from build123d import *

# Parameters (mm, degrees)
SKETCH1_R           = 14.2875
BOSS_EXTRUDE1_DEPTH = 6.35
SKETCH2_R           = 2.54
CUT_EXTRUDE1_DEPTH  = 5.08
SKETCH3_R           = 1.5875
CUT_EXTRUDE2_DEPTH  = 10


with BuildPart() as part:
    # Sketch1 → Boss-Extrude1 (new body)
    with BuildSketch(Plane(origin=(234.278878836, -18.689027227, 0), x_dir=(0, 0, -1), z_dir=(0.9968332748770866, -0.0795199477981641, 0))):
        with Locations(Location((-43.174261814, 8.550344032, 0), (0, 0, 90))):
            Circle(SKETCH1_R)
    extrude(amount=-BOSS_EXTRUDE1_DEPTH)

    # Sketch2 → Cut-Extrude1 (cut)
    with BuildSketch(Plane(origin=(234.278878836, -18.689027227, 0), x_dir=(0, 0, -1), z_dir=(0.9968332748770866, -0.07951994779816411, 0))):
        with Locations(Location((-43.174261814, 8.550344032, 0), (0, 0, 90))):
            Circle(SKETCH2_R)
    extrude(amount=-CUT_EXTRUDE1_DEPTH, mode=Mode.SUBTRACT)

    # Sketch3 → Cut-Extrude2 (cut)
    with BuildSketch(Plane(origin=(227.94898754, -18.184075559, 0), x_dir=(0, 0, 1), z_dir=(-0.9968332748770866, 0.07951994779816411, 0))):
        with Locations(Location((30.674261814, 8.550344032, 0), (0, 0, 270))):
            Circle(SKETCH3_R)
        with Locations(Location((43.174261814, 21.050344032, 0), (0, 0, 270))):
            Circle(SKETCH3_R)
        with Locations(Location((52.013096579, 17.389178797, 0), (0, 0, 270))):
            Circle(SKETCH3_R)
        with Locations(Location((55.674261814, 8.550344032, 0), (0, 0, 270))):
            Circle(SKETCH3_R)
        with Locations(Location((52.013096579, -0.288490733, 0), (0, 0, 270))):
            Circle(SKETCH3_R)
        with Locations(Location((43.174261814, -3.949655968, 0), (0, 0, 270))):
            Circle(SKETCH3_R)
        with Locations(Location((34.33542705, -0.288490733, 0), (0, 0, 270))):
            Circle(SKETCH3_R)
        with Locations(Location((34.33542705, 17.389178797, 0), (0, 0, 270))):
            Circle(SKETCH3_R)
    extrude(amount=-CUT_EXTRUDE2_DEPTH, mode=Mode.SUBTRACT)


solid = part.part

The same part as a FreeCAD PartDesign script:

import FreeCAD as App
import Part
import Sketcher
Q = App.Units.Quantity

doc = App.newDocument("Part")
params = doc.addObject("Spreadsheet::Sheet", "Params")
for row, (alias, value) in enumerate([
    ("sketch1_diameter", "1.125 in"),
    ("pad1_length", "0.25 in"),
    ("sketch2_diameter", "0.2 in"),
    ("pocket1_length", "0.2 in"),
    ("sketch3_diameter", "0.125 in"),
    ("pocket2_length", "10 mm"),
], start=1):
    params.set(f"A{row}", alias)
    params.set(f"B{row}", "=" + value)
    params.setAlias(f"B{row}", alias)

body = doc.addObject("PartDesign::Body", "Body")

sketch1 = body.newObject("Sketcher::SketchObject", "Sketch")
sketch1.Placement = App.Placement(App.Vector(234.278879, -18.689027, 0), App.Rotation(App.Vector(0, 0, -1), App.Vector(0.079519948, 0.996833275, 0), App.Vector(0.996833275, -0.079519948, 0), "ZXY"))
sketch1.addGeometry(Part.Circle(App.Vector(-43, 9, 0), App.Vector(0, 0, 1), 14), False)
sketch1.addConstraint([
    Sketcher.Constraint("Diameter", 0, Q("1.125 in")),
    Sketcher.Constraint("DistanceX", 0, 3, -1, 1, Q("43.174262 mm")),
    Sketcher.Constraint("DistanceY", -1, 1, 0, 3, Q("8.550344 mm")),
])
sketch1.setExpression("Constraints[0]", "Params.sketch1_diameter")
pad1 = body.newObject("PartDesign::Pad", "Pad")
pad1.Profile = sketch1
pad1.setExpression("Length", "Params.pad1_length")
pad1.Reversed = True

sketch2 = body.newObject("Sketcher::SketchObject", "Sketch001")
sketch2.Placement = App.Placement(App.Vector(234.278879, -18.689027, 0), App.Rotation(App.Vector(0, 0, -1), App.Vector(0.079519948, 0.996833275, 0), App.Vector(0.996833275, -0.079519948, 0), "ZXY"))
sketch2.addGeometry(Part.Circle(App.Vector(-43.2, 8.6, 0), App.Vector(0, 0, 1), 2.5), False)
sketch2.addConstraint([
    Sketcher.Constraint("Diameter", 0, Q("0.2 in")),
    Sketcher.Constraint("DistanceX", 0, 3, -1, 1, Q("43.174262 mm")),
    Sketcher.Constraint("DistanceY", -1, 1, 0, 3, Q("8.550344 mm")),
])
sketch2.setExpression("Constraints[0]", "Params.sketch2_diameter")
pocket1 = body.newObject("PartDesign::Pocket", "Pocket")
pocket1.Profile = sketch2
pocket1.setExpression("Length", "Params.pocket1_length")

sketch3 = body.newObject("Sketcher::SketchObject", "Sketch002")
sketch3.Placement = App.Placement(App.Vector(227.948988, -18.184076, 0), App.Rotation(App.Vector(0, 0, 1), App.Vector(0.079519948, 0.996833275, 0), App.Vector(-0.996833275, 0.079519948, 0), "ZXY"))
sketch3.addGeometry([
    Part.Circle(App.Vector(30.7, 8.6, 0), App.Vector(0, 0, 1), 1.6),
    Part.Circle(App.Vector(43.2, 21.1, 0), App.Vector(0, 0, 1), 1.6),
    Part.Circle(App.Vector(52, 17.4, 0), App.Vector(0, 0, 1), 1.6),
    Part.Circle(App.Vector(55.7, 8.6, 0), App.Vector(0, 0, 1), 1.6),
    Part.Circle(App.Vector(52, -0.3, 0), App.Vector(0, 0, 1), 1.6),
    Part.Circle(App.Vector(43.2, -3.9, 0), App.Vector(0, 0, 1), 1.6),
    Part.Circle(App.Vector(34.3, -0.3, 0), App.Vector(0, 0, 1), 1.6),
    Part.Circle(App.Vector(34.3, 17.4, 0), App.Vector(0, 0, 1), 1.6),
], False)
sketch3.addConstraint([
    Sketcher.Constraint("Equal", 0, 1),
    Sketcher.Constraint("Equal", 1, 2),
    Sketcher.Constraint("Equal", 2, 3),
    Sketcher.Constraint("Equal", 3, 4),
    Sketcher.Constraint("Equal", 4, 5),
    Sketcher.Constraint("Equal", 5, 6),
    Sketcher.Constraint("Equal", 6, 7),
    Sketcher.Constraint("Horizontal", 0, 3, 3, 3),
    Sketcher.Constraint("Horizontal", 4, 3, 6, 3),
    Sketcher.Constraint("Horizontal", 2, 3, 7, 3),
    Sketcher.Constraint("Vertical", 2, 3, 4, 3),
    Sketcher.Constraint("Vertical", 1, 3, 5, 3),
    Sketcher.Constraint("Vertical", 6, 3, 7, 3),
    Sketcher.Constraint("Diameter", 0, Q("0.125 in")),
    Sketcher.Constraint("DistanceX", -1, 1, 3, 3, Q("2.1919001 in")),
    Sketcher.Constraint("DistanceX", 0, 3, 1, 3, Q("12.5 mm")),
    Sketcher.Constraint("DistanceY", 0, 3, 1, 3, Q("12.5 mm")),
    Sketcher.Constraint("DistanceX", 1, 3, 3, 3, Q("12.5 mm")),
    Sketcher.Constraint("DistanceY", 5, 3, 0, 3, Q("12.5 mm")),
    Sketcher.Constraint("DistanceY", -1, 1, 2, 3, Q("17.389179 mm")),
    Sketcher.Constraint("DistanceY", 4, 3, -1, 1, Q("0.288491 mm")),
    Sketcher.Constraint("DistanceX", 6, 3, 4, 3, Q("17.67767 mm")),
    Sketcher.Constraint("DistanceY", -1, 1, 0, 3, Q("8.550344 mm")),
    Sketcher.Constraint("DistanceX", -1, 1, 2, 3, Q("52.013097 mm")),
])
sketch3.setExpression("Constraints[13]", "Params.sketch3_diameter")
pocket2 = body.newObject("PartDesign::Pocket", "Pocket001")
pocket2.Profile = sketch3
pocket2.setExpression("Length", "Params.pocket2_length")

doc.recompute()
